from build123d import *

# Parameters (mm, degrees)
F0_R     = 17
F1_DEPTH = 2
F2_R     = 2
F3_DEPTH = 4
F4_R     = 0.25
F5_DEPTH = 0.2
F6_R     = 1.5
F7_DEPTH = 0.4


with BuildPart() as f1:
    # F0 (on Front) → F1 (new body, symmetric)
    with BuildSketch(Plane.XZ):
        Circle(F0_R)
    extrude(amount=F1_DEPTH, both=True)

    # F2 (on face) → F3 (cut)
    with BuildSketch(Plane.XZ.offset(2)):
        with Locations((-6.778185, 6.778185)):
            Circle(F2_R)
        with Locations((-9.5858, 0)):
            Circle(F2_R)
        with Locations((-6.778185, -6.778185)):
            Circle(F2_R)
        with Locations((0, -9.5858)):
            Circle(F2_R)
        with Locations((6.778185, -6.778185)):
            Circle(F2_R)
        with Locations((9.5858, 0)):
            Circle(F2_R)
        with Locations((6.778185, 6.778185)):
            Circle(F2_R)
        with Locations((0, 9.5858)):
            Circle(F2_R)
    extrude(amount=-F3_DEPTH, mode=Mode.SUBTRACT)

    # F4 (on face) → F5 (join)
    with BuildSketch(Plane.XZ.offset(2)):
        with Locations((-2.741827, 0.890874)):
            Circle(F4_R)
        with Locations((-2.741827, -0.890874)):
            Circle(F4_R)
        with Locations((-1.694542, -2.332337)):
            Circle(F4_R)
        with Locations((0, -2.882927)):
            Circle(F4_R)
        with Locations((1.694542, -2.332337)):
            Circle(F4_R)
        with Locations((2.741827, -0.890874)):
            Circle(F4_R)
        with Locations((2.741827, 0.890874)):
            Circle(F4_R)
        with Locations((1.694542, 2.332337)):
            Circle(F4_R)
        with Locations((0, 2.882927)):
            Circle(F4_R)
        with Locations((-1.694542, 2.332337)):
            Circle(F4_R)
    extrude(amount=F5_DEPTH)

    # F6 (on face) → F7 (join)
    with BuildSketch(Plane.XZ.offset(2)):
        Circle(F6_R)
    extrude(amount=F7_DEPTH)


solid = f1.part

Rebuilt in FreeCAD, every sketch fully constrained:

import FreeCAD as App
import Part
import Sketcher
Q = App.Units.Quantity

doc = App.newDocument("Part")
body = doc.addObject("PartDesign::Body", "Body")

# Sketch on XZ plane
sketch1 = body.newObject("Sketcher::SketchObject", "Sketch")
sketch1.AttachmentSupport = (doc.getObject("XZ_Plane"), [""])
sketch1.MapMode = "FlatFace"
sketch1.addGeometry(Part.Circle(App.Vector(0, 0, 0), App.Vector(0, 0, 1), 17), False)
sketch1.addConstraint(Sketcher.Constraint("Coincident", 0, 3, -1, 1))
sketch1.addConstraint(Sketcher.Constraint("Diameter", 0, Q("34 mm")))
pad1 = body.newObject("PartDesign::Pad", "Pad")
pad1.Profile = sketch1
pad1.Length = 4
pad1.Midplane = True

# Sketch on XZ plane
sketch2 = body.newObject("Sketcher::SketchObject", "Sketch001")
sketch2.AttachmentSupport = (doc.getObject("XZ_Plane"), [""])
sketch2.MapMode = "FlatFace"
sketch2.AttachmentOffset = App.Placement(App.Vector(0, 0, 2), App.Rotation())
sketch2.addGeometry(Part.Circle(App.Vector(-6.778185, 6.778185, 0), App.Vector(0, 0, 1), 2), False)
sketch2.addGeometry(Part.Circle(App.Vector(-9.5858, 0, 0), App.Vector(0, 0, 1), 2), False)
sketch2.addGeometry(Part.Circle(App.Vector(-6.778185, -6.778185, 0), App.Vector(0, 0, 1), 2), False)
sketch2.addGeometry(Part.Circle(App.Vector(0, -9.5858, 0), App.Vector(0, 0, 1), 2), False)
sketch2.addGeometry(Part.Circle(App.Vector(6.778185, -6.778185, 0), App.Vector(0, 0, 1), 2), False)
sketch2.addGeometry(Part.Circle(App.Vector(9.5858, 0, 0), App.Vector(0, 0, 1), 2), False)
sketch2.addGeometry(Part.Circle(App.Vector(6.778185, 6.778185, 0), App.Vector(0, 0, 1), 2), False)
sketch2.addGeometry(Part.Circle(App.Vector(0, 9.5858, 0), App.Vector(0, 0, 1), 2), False)
sketch2.addConstraint(Sketcher.Constraint("Equal", 0, 1))
sketch2.addConstraint(Sketcher.Constraint("Equal", 1, 2))
sketch2.addConstraint(Sketcher.Constraint("Equal", 2, 3))
sketch2.addConstraint(Sketcher.Constraint("Equal", 3, 4))
sketch2.addConstraint(Sketcher.Constraint("Equal", 4, 5))
sketch2.addConstraint(Sketcher.Constraint("Equal", 5, 6))
sketch2.addConstraint(Sketcher.Constraint("Equal", 6, 7))
sketch2.addConstraint(Sketcher.Constraint("Symmetric", 0, 3, 4, 3, -1, 1))
sketch2.addConstraint(Sketcher.Constraint("Symmetric", 1, 3, 5, 3, -1, 1))
sketch2.addConstraint(Sketcher.Constraint("Symmetric", 2, 3, 6, 3, -1, 1))
sketch2.addConstraint(Sketcher.Constraint("Symmetric", 3, 3, 7, 3, -1, 1))
sketch2.addConstraint(Sketcher.Constraint("Symmetric", 2, 3, 4, 3, -2))
sketch2.addConstraint(Sketcher.Constraint("PointOnObject", 1, 3, -1))
sketch2.addConstraint(Sketcher.Constraint("PointOnObject", 3, 3, -2))
sketch2.addConstraint(Sketcher.Constraint("Diameter", 0, Q("4 mm")))
sketch2.addConstraint(Sketcher.Constraint("DistanceX", 1, 3, -1, 1, Q("9.5858 mm")))
sketch2.addConstraint(Sketcher.Constraint("DistanceY", 3, 3, -1, 1, Q("9.5858 mm")))
sketch2.addConstraint(Sketcher.Constraint("DistanceY", 2, 3, 0, 3, Q("13.55637 mm")))
sketch2.addConstraint(Sketcher.Constraint("DistanceX", 2, 3, 4, 3, Q("13.55637 mm")))
pocket1 = body.newObject("PartDesign::Pocket", "Pocket")
pocket1.Profile = sketch2
pocket1.Length = 4

# Sketch on XZ plane
sketch3 = body.newObject("Sketcher::SketchObject", "Sketch002")
sketch3.AttachmentSupport = (doc.getObject("XZ_Plane"), [""])
sketch3.MapMode = "FlatFace"
sketch3.AttachmentOffset = App.Placement(App.Vector(0, 0, 2), App.Rotation())
sketch3.addGeometry(Part.Circle(App.Vector(-2.741827, 0.890874, 0), App.Vector(0, 0, 1), 0.25), False)
sketch3.addGeometry(Part.Circle(App.Vector(-2.741827, -0.890874, 0), App.Vector(0, 0, 1), 0.25), False)
sketch3.addGeometry(Part.Circle(App.Vector(-1.694542, -2.332337, 0), App.Vector(0, 0, 1), 0.25), False)
sketch3.addGeometry(Part.Circle(App.Vector(0, -2.882927, 0), App.Vector(0, 0, 1), 0.25), False)
sketch3.addGeometry(Part.Circle(App.Vector(1.694542, -2.332337, 0), App.Vector(0, 0, 1), 0.25), False)
sketch3.addGeometry(Part.Circle(App.Vector(2.741827, -0.890874, 0), App.Vector(0, 0, 1), 0.25), False)
sketch3.addGeometry(Part.Circle(App.Vector(2.741827, 0.890874, 0), App.Vector(0, 0, 1), 0.25), False)
sketch3.addGeometry(Part.Circle(App.Vector(1.694542, 2.332337, 0), App.Vector(0, 0, 1), 0.25), False)
sketch3.addGeometry(Part.Circle(App.Vector(0, 2.882927, 0), App.Vector(0, 0, 1), 0.25), False)
sketch3.addGeometry(Part.Circle(App.Vector(-1.694542, 2.332337, 0), App.Vector(0, 0, 1), 0.25), False)
sketch3.addConstraint(Sketcher.Constraint("Equal", 0, 1))
sketch3.addConstraint(Sketcher.Constraint("Equal", 1, 2))
sketch3.addConstraint(Sketcher.Constraint("Equal", 2, 3))
sketch3.addConstraint(Sketcher.Constraint("Equal", 3, 4))
sketch3.addConstraint(Sketcher.Constraint("Equal", 4, 5))
sketch3.addConstraint(Sketcher.Constraint("Equal", 5, 6))
sketch3.addConstraint(Sketcher.Constraint("Equal", 6, 7))
sketch3.addConstraint(Sketcher.Constraint("Equal", 7, 8))
sketch3.addConstraint(Sketcher.Constraint("Equal", 8, 9))
sketch3.addConstraint(Sketcher.Constraint("Symmetric", 0, 3, 5, 3, -1, 1))
sketch3.addConstraint(Sketcher.Constraint("Symmetric", 1, 3, 6, 3, -1, 1))
sketch3.addConstraint(Sketcher.Constraint("Symmetric", 2, 3, 7, 3, -1, 1))
sketch3.addConstraint(Sketcher.Constraint("Symmetric", 3, 3, 8, 3, -1, 1))
sketch3.addConstraint(Sketcher.Constraint("Symmetric", 4, 3, 9, 3, -1, 1))
sketch3.addConstraint(Sketcher.Constraint("Symmetric", 2, 3, 4, 3, -2))
sketch3.addConstraint(Sketcher.Constraint("Symmetric", 1, 3, 5, 3, -2))
sketch3.addConstraint(Sketcher.Constraint("PointOnObject", 3, 3, -2))
sketch3.addConstraint(Sketcher.Constraint("Diameter", 0, Q("0.5 mm")))
sketch3.addConstraint(Sketcher.Constraint("DistanceY", 3, 3, 0, 3, Q("3.773801 mm")))
sketch3.addConstraint(Sketcher.Constraint("DistanceY", 1, 3, 0, 3, Q("1.781748 mm")))
sketch3.addConstraint(Sketcher.Constraint("DistanceY", 2, 3, 0, 3, Q("3.223211 mm")))
sketch3.addConstraint(Sketcher.Constraint("DistanceX", 1, 3, 4, 3, Q("4.436369 mm")))
sketch3.addConstraint(Sketcher.Constraint("DistanceX", 0, 3, -1, 1, Q("2.741827 mm")))
pad2 = body.newObject("PartDesign::Pad", "Pad001")
pad2.Profile = sketch3
pad2.Length = 0.2

# Sketch on XZ plane
sketch4 = body.newObject("Sketcher::SketchObject", "Sketch003")
sketch4.AttachmentSupport = (doc.getObject("XZ_Plane"), [""])
sketch4.MapMode = "FlatFace"
sketch4.AttachmentOffset = App.Placement(App.Vector(0, 0, 2), App.Rotation())
sketch4.addGeometry(Part.Circle(App.Vector(0, 0, 0), App.Vector(0, 0, 1), 1.5), False)
sketch4.addConstraint(Sketcher.Constraint("Coincident", 0, 3, -1, 1))
sketch4.addConstraint(Sketcher.Constraint("Diameter", 0, Q("3 mm")))
pad3 = body.newObject("PartDesign::Pad", "Pad002")
pad3.Profile = sketch4
pad3.Length = 0.4

doc.recompute()
